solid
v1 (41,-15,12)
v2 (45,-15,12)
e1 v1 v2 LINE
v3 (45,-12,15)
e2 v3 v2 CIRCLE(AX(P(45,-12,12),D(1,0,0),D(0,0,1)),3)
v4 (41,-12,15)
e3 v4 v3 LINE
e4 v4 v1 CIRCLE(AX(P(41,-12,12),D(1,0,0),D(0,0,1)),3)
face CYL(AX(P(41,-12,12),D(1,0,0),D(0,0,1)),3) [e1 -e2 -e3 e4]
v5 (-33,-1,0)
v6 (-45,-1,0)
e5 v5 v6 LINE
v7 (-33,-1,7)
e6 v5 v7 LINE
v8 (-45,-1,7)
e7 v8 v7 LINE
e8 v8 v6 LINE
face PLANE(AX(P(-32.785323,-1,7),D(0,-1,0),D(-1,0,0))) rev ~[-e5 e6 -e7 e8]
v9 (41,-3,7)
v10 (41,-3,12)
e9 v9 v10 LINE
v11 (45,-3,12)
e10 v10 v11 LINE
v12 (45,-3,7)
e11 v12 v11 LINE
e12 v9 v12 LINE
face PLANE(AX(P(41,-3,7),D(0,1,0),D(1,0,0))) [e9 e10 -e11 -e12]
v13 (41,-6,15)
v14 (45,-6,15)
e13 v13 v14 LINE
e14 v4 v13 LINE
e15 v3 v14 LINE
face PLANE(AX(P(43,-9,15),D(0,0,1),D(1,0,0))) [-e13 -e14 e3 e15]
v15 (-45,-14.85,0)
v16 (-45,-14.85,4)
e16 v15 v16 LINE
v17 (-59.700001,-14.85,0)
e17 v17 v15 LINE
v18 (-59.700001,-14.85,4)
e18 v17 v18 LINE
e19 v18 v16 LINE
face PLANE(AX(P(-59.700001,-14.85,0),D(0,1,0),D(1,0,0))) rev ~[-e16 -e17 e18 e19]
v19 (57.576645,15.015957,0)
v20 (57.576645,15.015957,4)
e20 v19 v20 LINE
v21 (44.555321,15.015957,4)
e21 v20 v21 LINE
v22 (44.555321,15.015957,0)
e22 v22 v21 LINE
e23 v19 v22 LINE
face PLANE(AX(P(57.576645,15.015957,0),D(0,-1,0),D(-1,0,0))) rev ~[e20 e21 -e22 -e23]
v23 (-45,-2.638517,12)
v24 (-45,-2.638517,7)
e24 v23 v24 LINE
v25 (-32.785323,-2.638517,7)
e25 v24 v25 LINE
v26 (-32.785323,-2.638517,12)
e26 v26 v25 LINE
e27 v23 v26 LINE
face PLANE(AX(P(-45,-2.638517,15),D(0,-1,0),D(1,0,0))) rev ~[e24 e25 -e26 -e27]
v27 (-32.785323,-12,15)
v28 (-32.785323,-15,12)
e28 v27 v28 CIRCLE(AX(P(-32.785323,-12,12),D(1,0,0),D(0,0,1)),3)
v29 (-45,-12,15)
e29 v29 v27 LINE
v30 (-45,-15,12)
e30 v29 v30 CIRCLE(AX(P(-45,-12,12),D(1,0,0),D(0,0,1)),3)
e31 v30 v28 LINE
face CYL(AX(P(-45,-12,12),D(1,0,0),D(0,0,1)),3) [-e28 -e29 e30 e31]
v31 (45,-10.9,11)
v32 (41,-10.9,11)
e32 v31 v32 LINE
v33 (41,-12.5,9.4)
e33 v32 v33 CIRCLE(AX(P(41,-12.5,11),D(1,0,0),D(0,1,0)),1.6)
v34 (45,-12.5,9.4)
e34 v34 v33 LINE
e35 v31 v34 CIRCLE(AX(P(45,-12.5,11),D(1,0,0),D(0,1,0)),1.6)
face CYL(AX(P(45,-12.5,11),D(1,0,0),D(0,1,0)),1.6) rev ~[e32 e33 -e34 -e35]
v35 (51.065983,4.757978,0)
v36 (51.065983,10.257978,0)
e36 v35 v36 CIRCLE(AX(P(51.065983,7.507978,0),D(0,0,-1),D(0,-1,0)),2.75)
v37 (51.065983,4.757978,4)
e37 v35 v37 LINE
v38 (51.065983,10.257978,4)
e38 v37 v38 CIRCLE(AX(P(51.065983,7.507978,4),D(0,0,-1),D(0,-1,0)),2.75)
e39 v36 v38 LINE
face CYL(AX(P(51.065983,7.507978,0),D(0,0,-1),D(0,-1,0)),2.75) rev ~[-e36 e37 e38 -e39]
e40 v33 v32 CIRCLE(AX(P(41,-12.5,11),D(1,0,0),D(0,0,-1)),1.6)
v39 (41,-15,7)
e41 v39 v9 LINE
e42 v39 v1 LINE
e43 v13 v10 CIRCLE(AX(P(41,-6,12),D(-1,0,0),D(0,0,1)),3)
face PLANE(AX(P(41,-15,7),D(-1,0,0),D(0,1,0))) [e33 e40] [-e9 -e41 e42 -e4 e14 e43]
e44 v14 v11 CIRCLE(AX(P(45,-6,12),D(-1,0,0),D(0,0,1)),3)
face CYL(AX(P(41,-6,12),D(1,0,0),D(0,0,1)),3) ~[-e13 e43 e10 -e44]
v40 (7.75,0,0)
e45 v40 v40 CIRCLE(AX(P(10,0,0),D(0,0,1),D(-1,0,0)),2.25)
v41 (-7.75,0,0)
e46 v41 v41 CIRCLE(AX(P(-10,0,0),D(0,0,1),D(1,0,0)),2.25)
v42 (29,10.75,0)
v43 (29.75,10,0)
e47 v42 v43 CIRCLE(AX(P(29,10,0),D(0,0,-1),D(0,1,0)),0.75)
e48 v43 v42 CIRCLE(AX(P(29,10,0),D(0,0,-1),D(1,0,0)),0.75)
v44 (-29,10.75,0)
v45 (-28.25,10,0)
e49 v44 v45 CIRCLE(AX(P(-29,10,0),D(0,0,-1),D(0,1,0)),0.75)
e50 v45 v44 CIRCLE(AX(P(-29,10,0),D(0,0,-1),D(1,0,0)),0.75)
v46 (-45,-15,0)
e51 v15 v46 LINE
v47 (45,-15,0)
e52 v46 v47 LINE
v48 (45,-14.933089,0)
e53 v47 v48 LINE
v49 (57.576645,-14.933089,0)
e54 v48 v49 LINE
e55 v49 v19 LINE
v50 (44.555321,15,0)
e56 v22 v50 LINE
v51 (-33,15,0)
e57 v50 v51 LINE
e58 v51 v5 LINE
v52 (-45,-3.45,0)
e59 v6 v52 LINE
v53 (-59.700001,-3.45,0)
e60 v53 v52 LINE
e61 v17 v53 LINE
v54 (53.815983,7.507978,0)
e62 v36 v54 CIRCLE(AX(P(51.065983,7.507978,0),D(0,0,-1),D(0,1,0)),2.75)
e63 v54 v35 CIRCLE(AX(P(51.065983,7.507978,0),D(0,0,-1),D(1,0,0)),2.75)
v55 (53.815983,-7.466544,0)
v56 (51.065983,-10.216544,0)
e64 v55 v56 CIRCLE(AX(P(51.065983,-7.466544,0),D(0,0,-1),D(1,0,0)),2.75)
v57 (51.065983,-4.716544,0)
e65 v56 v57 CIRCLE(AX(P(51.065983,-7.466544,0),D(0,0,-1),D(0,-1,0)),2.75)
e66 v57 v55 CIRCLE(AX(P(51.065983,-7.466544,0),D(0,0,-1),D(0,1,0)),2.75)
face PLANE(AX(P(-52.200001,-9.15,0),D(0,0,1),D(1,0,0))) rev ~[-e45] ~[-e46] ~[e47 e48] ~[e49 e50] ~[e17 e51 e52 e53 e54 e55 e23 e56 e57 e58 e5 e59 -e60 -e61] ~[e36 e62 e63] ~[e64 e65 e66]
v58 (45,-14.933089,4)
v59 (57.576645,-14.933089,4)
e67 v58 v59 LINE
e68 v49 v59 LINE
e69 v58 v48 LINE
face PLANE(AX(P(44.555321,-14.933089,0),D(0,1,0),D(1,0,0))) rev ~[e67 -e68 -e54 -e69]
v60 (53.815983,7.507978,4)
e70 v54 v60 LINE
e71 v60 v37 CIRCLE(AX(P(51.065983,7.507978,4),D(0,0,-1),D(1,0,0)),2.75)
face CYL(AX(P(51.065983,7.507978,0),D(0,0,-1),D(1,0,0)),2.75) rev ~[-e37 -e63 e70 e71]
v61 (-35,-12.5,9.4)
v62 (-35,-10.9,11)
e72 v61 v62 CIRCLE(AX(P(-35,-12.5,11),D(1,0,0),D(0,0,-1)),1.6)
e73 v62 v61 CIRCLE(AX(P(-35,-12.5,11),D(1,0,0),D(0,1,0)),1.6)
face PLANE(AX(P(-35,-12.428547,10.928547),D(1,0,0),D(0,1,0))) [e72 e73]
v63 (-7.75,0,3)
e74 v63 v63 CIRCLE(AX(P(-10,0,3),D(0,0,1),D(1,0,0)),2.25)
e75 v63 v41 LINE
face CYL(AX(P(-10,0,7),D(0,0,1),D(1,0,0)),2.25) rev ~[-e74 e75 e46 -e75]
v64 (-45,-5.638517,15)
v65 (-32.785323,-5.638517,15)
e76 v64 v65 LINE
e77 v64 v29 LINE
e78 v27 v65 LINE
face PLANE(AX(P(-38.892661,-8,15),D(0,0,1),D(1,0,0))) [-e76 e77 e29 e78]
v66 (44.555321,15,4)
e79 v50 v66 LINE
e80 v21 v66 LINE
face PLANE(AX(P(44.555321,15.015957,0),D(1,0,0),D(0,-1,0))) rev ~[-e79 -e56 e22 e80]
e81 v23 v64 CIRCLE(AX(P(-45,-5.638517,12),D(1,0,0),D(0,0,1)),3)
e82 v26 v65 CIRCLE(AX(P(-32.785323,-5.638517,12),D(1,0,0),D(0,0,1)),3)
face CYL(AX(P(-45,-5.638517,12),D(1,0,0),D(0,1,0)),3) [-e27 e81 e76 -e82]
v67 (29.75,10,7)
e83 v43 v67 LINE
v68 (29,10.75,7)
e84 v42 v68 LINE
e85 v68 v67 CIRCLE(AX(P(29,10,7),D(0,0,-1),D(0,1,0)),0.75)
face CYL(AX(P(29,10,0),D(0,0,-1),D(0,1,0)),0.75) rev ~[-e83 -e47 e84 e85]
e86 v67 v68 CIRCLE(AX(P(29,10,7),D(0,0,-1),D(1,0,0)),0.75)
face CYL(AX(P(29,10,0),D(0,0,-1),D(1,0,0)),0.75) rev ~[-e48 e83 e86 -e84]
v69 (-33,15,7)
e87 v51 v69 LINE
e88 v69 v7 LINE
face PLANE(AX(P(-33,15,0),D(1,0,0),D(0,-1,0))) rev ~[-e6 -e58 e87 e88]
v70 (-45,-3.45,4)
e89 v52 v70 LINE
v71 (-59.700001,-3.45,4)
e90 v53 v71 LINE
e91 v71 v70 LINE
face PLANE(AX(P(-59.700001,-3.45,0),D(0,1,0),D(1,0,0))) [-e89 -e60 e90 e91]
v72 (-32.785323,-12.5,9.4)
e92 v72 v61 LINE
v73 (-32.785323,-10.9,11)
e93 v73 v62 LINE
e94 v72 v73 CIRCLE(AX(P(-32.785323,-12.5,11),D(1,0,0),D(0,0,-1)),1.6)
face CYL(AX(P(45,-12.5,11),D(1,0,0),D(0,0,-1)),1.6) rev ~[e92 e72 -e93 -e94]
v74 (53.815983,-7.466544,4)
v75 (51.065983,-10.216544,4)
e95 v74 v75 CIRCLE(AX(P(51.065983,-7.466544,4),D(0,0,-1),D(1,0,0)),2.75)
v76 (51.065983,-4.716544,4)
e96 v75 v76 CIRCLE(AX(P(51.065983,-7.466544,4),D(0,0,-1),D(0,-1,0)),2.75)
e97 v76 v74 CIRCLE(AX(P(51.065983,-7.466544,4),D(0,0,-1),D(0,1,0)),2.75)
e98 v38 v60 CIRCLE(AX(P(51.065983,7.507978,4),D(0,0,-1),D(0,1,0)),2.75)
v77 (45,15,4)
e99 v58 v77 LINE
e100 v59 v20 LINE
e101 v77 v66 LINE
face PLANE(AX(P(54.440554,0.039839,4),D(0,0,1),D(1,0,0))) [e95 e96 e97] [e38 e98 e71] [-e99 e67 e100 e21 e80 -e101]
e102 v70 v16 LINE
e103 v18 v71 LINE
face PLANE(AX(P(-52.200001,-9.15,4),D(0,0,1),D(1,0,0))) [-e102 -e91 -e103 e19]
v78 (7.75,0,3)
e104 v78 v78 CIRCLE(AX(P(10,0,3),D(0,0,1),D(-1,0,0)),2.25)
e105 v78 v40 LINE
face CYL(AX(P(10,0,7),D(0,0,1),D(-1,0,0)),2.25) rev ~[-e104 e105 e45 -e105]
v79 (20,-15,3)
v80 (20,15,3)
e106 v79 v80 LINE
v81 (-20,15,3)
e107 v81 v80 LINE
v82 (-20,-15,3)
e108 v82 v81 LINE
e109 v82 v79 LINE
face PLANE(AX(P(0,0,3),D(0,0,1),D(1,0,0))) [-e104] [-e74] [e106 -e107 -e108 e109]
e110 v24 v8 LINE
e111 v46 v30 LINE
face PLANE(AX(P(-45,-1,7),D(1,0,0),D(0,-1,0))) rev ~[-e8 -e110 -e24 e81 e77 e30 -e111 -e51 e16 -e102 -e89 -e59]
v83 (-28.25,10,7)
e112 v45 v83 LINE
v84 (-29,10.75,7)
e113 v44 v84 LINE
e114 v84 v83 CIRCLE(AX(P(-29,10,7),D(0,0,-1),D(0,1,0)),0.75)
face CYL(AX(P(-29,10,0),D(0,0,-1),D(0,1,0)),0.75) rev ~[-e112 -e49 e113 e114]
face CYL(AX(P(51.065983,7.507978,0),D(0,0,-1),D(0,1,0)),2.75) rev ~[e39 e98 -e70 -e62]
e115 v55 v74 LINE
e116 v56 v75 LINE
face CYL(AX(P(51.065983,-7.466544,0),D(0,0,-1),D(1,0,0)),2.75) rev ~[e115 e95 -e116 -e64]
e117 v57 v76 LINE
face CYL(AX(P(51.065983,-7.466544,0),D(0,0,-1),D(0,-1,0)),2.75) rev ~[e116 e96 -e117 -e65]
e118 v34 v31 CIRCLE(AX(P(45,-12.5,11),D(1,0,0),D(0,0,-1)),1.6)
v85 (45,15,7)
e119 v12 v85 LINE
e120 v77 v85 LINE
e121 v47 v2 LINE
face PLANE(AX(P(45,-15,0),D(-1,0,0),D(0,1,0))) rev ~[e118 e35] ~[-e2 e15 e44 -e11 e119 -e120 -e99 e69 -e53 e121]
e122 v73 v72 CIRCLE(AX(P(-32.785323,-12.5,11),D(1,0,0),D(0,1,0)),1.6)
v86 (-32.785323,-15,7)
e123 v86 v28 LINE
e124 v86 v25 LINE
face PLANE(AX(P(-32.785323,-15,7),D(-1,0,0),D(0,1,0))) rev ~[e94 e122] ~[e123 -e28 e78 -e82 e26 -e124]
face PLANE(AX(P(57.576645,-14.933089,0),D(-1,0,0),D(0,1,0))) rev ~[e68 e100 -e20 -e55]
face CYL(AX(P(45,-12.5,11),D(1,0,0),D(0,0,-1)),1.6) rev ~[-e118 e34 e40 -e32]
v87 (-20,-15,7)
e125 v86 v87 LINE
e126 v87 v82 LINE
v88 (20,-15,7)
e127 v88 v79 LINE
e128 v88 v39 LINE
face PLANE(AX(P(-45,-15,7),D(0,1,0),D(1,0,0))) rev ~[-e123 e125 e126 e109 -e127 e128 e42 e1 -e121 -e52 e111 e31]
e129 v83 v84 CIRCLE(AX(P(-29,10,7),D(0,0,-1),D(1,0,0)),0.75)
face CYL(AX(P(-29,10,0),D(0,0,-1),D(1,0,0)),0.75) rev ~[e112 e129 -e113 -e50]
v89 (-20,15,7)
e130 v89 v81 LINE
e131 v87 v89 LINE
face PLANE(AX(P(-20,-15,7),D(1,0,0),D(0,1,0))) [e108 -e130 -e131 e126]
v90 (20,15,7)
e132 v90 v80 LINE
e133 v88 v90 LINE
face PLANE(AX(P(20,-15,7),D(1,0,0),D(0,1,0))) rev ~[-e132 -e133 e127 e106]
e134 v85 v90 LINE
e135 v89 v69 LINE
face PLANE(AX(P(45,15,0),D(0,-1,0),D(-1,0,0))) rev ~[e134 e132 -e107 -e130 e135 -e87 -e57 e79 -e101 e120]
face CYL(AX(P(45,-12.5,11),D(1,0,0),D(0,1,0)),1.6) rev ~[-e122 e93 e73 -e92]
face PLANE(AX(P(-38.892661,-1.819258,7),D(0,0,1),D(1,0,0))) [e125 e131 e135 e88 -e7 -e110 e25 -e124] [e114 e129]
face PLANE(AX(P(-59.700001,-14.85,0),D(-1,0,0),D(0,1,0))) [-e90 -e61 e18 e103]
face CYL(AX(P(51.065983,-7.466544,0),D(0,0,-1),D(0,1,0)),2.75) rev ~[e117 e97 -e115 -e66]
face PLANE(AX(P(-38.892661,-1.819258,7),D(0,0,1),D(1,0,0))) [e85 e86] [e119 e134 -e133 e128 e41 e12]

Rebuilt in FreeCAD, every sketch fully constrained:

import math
import FreeCAD as App
import Part
import Sketcher

V = App.Vector


def edges_at(feature, points):
    """Names of the edges that pass closest to the given points."""
    edges = feature.Shape.Edges
    near = lambda p: min(range(len(edges)), key=lambda i: edges[i].distToShape(Part.Vertex(*p))[0])
    return sorted({f"Edge{near(p) + 1}" for p in points})


def add_polygon(sketch, points):
    """Adds a closed chain of lines whose ends are joined by coincident constraints."""
    first, n = sketch.GeometryCount, len(points)
    for a, b in zip(points, points[1:] + points[:1]):
        sketch.addGeometry(Part.LineSegment(App.Vector(*a, 0), App.Vector(*b, 0)), False)
    for i in range(n):
        sketch.addConstraint(Sketcher.Constraint("Coincident", first + i, 2, first + (i + 1) % n, 1))

doc = App.newDocument("Part")
body = doc.addObject("PartDesign::Body", "Body")

# Sketch on XY plane
sketch1 = body.newObject("Sketcher::SketchObject", "Sketch")
sketch1.AttachmentSupport = (doc.getObject("XY_Plane"), [""])
sketch1.MapMode = "FlatFace"
add_polygon(sketch1, [(-33, 15), (-33, -1), (-45, -1), (-45, -15), (45, -15), (45, 15)])  # lines 0-5
sketch1.addGeometry(Part.ArcOfCircle(Part.Circle(V(-29, 10, 0), V(0, 0, 1), 0.8), math.radians(0), math.radians(90)), False)  # 6
sketch1.addGeometry(Part.ArcOfCircle(Part.Circle(V(-29, 10, 0), V(0, 0, 1), 0.8), math.radians(90), math.radians(360)), False)  # 7
sketch1.addGeometry(Part.ArcOfCircle(Part.Circle(V(29, 10, 0), V(0, 0, 1), 0.8), math.radians(0), math.radians(90)), False)  # 8
sketch1.addGeometry(Part.ArcOfCircle(Part.Circle(V(29, 10, 0), V(0, 0, 1), 0.8), math.radians(90), math.radians(360)), False)  # 9
sketch1.addConstraint([
    Sketcher.Constraint("Tangent", 6, 1, 7, 2),
    Sketcher.Constraint("Coincident", 7, 1, 6, 2),
    Sketcher.Constraint("Tangent", 8, 1, 9, 2),
    Sketcher.Constraint("Coincident", 9, 1, 8, 2),
    Sketcher.Constraint("Vertical", 0),
    Sketcher.Constraint("Horizontal", 1),
    Sketcher.Constraint("Vertical", 2),
    Sketcher.Constraint("Horizontal", 3),
    Sketcher.Constraint("Vertical", 4),
    Sketcher.Constraint("Horizontal", 5),
    Sketcher.Constraint("Equal", 7, 8),
    Sketcher.Constraint("Symmetric", 2, 2, 4, 2, -1, 1),
    Sketcher.Constraint("Symmetric", 6, 3, 8, 3, -2),
    Sketcher.Constraint("Horizontal", 9, 3, 6, 1),
    Sketcher.Constraint("Horizontal", 6, 1, 8, 1),
    Sketcher.Constraint("Vertical", 6, 3, 7, 1),
    Sketcher.Constraint("Vertical", 8, 3, 9, 1),
    Sketcher.Constraint("DistanceX", 1, 2, 1, 1, 12.0),
    Sketcher.Constraint("DistanceX", 3, 1, 3, 2, 90.0),
    Sketcher.Constraint("DistanceY", 0, 2, 0, 1, 16.0),
    Sketcher.Constraint("DistanceY", 2, 2, 2, 1, 14.0),
    Sketcher.Constraint("Radius", 6, 0.75),
    Sketcher.Constraint("DistanceX", 6, 3, -1, 1, 29.0),
    Sketcher.Constraint("DistanceY", -1, 1, 6, 3, 10.0),
])
pad1 = body.newObject("PartDesign::Pad", "Pad")
pad1.Profile = sketch1
pad1.Length = 7

# Sketch on XY plane
sketch2 = body.newObject("Sketcher::SketchObject", "Sketch001")
sketch2.AttachmentSupport = (doc.getObject("XY_Plane"), [""])
sketch2.MapMode = "FlatFace"
sketch2.AttachmentOffset = App.Placement(V(0, 0, 7), App.Rotation())
add_polygon(sketch2, [(-45, -1), (-45, -15), (-32.8, -15), (-32.8, -1)])  # lines 0-3
add_polygon(sketch2, [(41, -3), (41, -15), (45, -15), (45, -3)])  # lines 4-7
sketch2.addConstraint([
    Sketcher.Constraint("Vertical", 0),
    Sketcher.Constraint("Horizontal", 1),
    Sketcher.Constraint("Vertical", 2),
    Sketcher.Constraint("Horizontal", 3),
    Sketcher.Constraint("Vertical", 4),
    Sketcher.Constraint("Horizontal", 5),
    Sketcher.Constraint("Vertical", 6),
    Sketcher.Constraint("Horizontal", 7),
    Sketcher.Constraint("Symmetric", 0, 2, 5, 2, -2),
    Sketcher.Constraint("DistanceX", 5, 1, 5, 2, 4.0),
    Sketcher.Constraint("DistanceY", 0, 2, 0, 1, 14.0),
    Sketcher.Constraint("DistanceY", 4, 2, 4, 1, 12.0),
    Sketcher.Constraint("DistanceX", 0, 2, -1, 1, 45.0),
    Sketcher.Constraint("DistanceY", 0, 2, -1, 1, 15.0),
    Sketcher.Constraint("DistanceX", 1, 1, 1, 2, 12.214677),
])
pad2 = body.newObject("PartDesign::Pad", "Pad001")
pad2.Profile = sketch2
pad2.Length = 8

# Sketch on XY plane
sketch3 = body.newObject("Sketcher::SketchObject", "Sketch002")
sketch3.AttachmentSupport = (doc.getObject("XY_Plane"), [""])
sketch3.MapMode = "FlatFace"
sketch3.AttachmentOffset = App.Placement(V(0, 0, 15), App.Rotation())
add_polygon(sketch3, [(-45, -1), (-45, -2.6), (-32.8, -2.6), (-32.8, -1)])  # lines 0-3
sketch3.addConstraint([
    Sketcher.Constraint("Vertical", 0),
    Sketcher.Constraint("Horizontal", 1),
    Sketcher.Constraint("Vertical", 2),
    Sketcher.Constraint("Horizontal", 3),
    Sketcher.Constraint("DistanceX", 0, 2, -1, 1, 45.0),
    Sketcher.Constraint("DistanceY", 2, 2, -1, 1, 1.0),
    Sketcher.Constraint("DistanceX", 1, 1, 1, 2, 12.214677),
    Sketcher.Constraint("DistanceY", 0, 2, 0, 1, 1.638517),
])
pocket1 = body.newObject("PartDesign::Pocket", "Pocket")
pocket1.Profile = sketch3
pocket1.Length = 8

# Sketch on YZ plane
sketch4 = body.newObject("Sketcher::SketchObject", "Sketch003")
sketch4.AttachmentSupport = (doc.getObject("YZ_Plane"), [""])
sketch4.MapMode = "FlatFace"
sketch4.AttachmentOffset = App.Placement(V(0, 0, 45), App.Rotation())
sketch4.addGeometry([
    Part.ArcOfCircle(Part.Circle(V(-12.5, 11, 0), V(0, 0, 1), 1.6), math.radians(-90), math.radians(0)),
    Part.ArcOfCircle(Part.Circle(V(-12.5, 11, 0), V(0, 0, 1), 1.6), math.radians(0), math.radians(270)),
], False)
sketch4.addConstraint([
    Sketcher.Constraint("Tangent", 0, 1, 1, 2),
    Sketcher.Constraint("Coincident", 1, 1, 0, 2),
    Sketcher.Constraint("Horizontal", 0, 3, 1, 1),
    Sketcher.Constraint("Vertical", 1, 3, 0, 1),
    Sketcher.Constraint("Radius", 0, 1.6),
    Sketcher.Constraint("DistanceY", -1, 1, 0, 3, 11.0),
    Sketcher.Constraint("DistanceX", 0, 3, -1, 1, 12.5),
])
pocket2 = body.newObject("PartDesign::Pocket", "Pocket001")
pocket2.Profile = sketch4
pocket2.Length = 80

# Sketch on XY plane
sketch5 = body.newObject("Sketcher::SketchObject", "Sketch004")
sketch5.AttachmentSupport = (doc.getObject("XY_Plane"), [""])
sketch5.MapMode = "FlatFace"
sketch5.AttachmentOffset = App.Placement(V(0, 0, 7), App.Rotation())
sketch5.addGeometry([
    Part.Circle(V(-10, 0, 0), V(0, 0, 1), 2.2),
    Part.Circle(V(10, 0, 0), V(0, 0, 1), 2.2),
], False)
sketch5.addConstraint([
    Sketcher.Constraint("Equal", 0, 1),
    Sketcher.Constraint("Symmetric", 0, 3, 1, 3, -1, 1),
    Sketcher.Constraint("PointOnObject", 0, 3, -1),
    Sketcher.Constraint("Diameter", 0, 4.5),
    Sketcher.Constraint("DistanceX", 0, 3, -1, 1, 10.0),
])
pocket3 = body.newObject("PartDesign::Pocket", "Pocket002")
pocket3.Profile = sketch5
pocket3.Length = 25

# Sketch on XY plane
sketch6 = body.newObject("Sketcher::SketchObject", "Sketch005")
sketch6.AttachmentSupport = (doc.getObject("XY_Plane"), [""])
sketch6.MapMode = "FlatFace"
sketch6.AttachmentOffset = App.Placement(V(0, 0, 7), App.Rotation())
add_polygon(sketch6, [(-20, 15), (-20, -15), (20, -15), (20, 15)])  # lines 0-3
sketch6.addGeometry(Part.Circle(V(-10, 0, 0), V(0, 0, 1), 2.2), False)  # 4
sketch6.addGeometry(Part.Circle(V(10, 0, 0), V(0, 0, 1), 2.2), False)  # 5
sketch6.addConstraint([
    Sketcher.Constraint("Vertical", 0),
    Sketcher.Constraint("Horizontal", 1),
    Sketcher.Constraint("Vertical", 2),
    Sketcher.Constraint("Horizontal", 3),
    Sketcher.Constraint("Equal", 4, 5),
    Sketcher.Constraint("Symmetric", 4, 3, 5, 3, -1, 1),
    Sketcher.Constraint("Symmetric", 0, 2, 2, 2, -1, 1),
    Sketcher.Constraint("PointOnObject", 4, 3, -1),
    Sketcher.Constraint("Diameter", 4, 4.5),
    Sketcher.Constraint("DistanceX", 1, 1, 1, 2, 40.0),
    Sketcher.Constraint("DistanceY", 0, 2, 0, 1, 30.0),
    Sketcher.Constraint("DistanceX", 4, 3, -1, 1, 10.0),
])
pocket4 = body.newObject("PartDesign::Pocket", "Pocket003")
pocket4.Profile = sketch6
pocket4.Length = 4
doc.recompute()

fillet = body.newObject("PartDesign::Fillet", "Fillet")
fillet.Base = (pocket4, edges_at(pocket4, [
    (-38.893, -15, 15),
    (43, -15, 15),
    (-38.893, -2.639, 15),
    (43, -3, 15),
]))
fillet.Radius = 3

# Sketch on XY plane
sketch7 = body.newObject("Sketcher::SketchObject", "Sketch006")
sketch7.AttachmentSupport = (doc.getObject("XY_Plane"), [""])
sketch7.MapMode = "FlatFace"
add_polygon(sketch7, [(57.6, 15), (44.6, 15), (44.6, -14.9), (57.6, -14.9)])  # lines 0-3
sketch7.addGeometry(Part.ArcOfCircle(Part.Circle(V(51.1, 7.5, 0), V(0, 0, 1), 2.8), math.radians(0), math.radians(90)), False)  # 4
sketch7.addGeometry(Part.ArcOfCircle(Part.Circle(V(51.1, 7.5, 0), V(0, 0, 1), 2.8), math.radians(-90), math.radians(0)), False)  # 5
sketch7.addGeometry(Part.ArcOfCircle(Part.Circle(V(51.1, 7.5, 0), V(0, 0, 1), 2.8), math.radians(90), math.radians(270)), False)  # 6
sketch7.addGeometry(Part.ArcOfCircle(Part.Circle(V(51.1, -7.5, 0), V(0, 0, 1), 2.8), math.radians(0), math.radians(90)), False)  # 7
sketch7.addGeometry(Part.ArcOfCircle(Part.Circle(V(51.1, -7.5, 0), V(0, 0, 1), 2.8), math.radians(-90), math.radians(0)), False)  # 8
sketch7.addGeometry(Part.ArcOfCircle(Part.Circle(V(51.1, -7.5, 0), V(0, 0, 1), 2.8), math.radians(90), math.radians(270)), False)  # 9
sketch7.addConstraint([
    Sketcher.Constraint("Tangent", 4, 1, 5, 2),
    Sketcher.Constraint("Tangent", 5, 1, 6, 2),
    Sketcher.Constraint("Tangent", 6, 1, 4, 2),
    Sketcher.Constraint("Tangent", 7, 1, 8, 2),
    Sketcher.Constraint("Tangent", 8, 1, 9, 2),
    Sketcher.Constraint("Tangent", 9, 1, 7, 2),
    Sketcher.Constraint("Horizontal", 0),
    Sketcher.Constraint("Vertical", 1),
    Sketcher.Constraint("Horizontal", 2),
    Sketcher.Constraint("Vertical", 3),
    Sketcher.Constraint("Equal", 6, 7),
    Sketcher.Constraint("Horizontal", 6, 3, 4, 1),
    Sketcher.Constraint("Horizontal", 9, 3, 7, 1),
    Sketcher.Constraint("Vertical", 6, 3, 7, 3),
    Sketcher.Constraint("Vertical", 9, 3, 5, 1),
    Sketcher.Constraint("Vertical", 5, 1, 6, 1),
    Sketcher.Constraint("Vertical", 6, 1, 8, 1),
    Sketcher.Constraint("Vertical", 8, 1, 9, 1),
    Sketcher.Constraint("Radius", 4, 2.75),
    Sketcher.Constraint("DistanceY", 7, 3, 0, 2, 22.482501),
    Sketcher.Constraint("DistanceX", 0, 2, 0, 1, 13.021324),
    Sketcher.Constraint("DistanceY", 1, 2, 1, 1, 29.949046),
    Sketcher.Constraint("DistanceY", -1, 1, 4, 3, 7.507978),
    Sketcher.Constraint("DistanceX", -1, 1, 0, 2, 44.555321),
    Sketcher.Constraint("DistanceY", 1, 2, -1, 1, 14.933089),
    Sketcher.Constraint("DistanceX", 0, 2, 4, 3, 6.510662),
])
pad3 = body.newObject("PartDesign::Pad", "Pad002")
pad3.Profile = sketch7
pad3.Length = 4

# Sketch on XY plane
sketch8 = body.newObject("Sketcher::SketchObject", "Sketch007")
sketch8.AttachmentSupport = (doc.getObject("XY_Plane"), [""])
sketch8.MapMode = "FlatFace"
add_polygon(sketch8, [(-60, -3), (-60, -15), (-45, -15), (-45, -3)])  # lines 0-3
sketch8.addConstraint([
    Sketcher.Constraint("Vertical", 0),
    Sketcher.Constraint("Horizontal", 1),
    Sketcher.Constraint("Vertical", 2),
    Sketcher.Constraint("Horizontal", 3),
    Sketcher.Constraint("DistanceX", 1, 1, 1, 2, 15.0),
    Sketcher.Constraint("DistanceY", 0, 2, 0, 1, 11.4),
    Sketcher.Constraint("DistanceX", 0, 2, -1, 1, 59.700001),
    Sketcher.Constraint("DistanceY", 0, 2, -1, 1, 14.85),
])
pad4 = body.newObject("PartDesign::Pad", "Pad003")
pad4.Profile = sketch8
pad4.Length = 4

doc.recompute()
